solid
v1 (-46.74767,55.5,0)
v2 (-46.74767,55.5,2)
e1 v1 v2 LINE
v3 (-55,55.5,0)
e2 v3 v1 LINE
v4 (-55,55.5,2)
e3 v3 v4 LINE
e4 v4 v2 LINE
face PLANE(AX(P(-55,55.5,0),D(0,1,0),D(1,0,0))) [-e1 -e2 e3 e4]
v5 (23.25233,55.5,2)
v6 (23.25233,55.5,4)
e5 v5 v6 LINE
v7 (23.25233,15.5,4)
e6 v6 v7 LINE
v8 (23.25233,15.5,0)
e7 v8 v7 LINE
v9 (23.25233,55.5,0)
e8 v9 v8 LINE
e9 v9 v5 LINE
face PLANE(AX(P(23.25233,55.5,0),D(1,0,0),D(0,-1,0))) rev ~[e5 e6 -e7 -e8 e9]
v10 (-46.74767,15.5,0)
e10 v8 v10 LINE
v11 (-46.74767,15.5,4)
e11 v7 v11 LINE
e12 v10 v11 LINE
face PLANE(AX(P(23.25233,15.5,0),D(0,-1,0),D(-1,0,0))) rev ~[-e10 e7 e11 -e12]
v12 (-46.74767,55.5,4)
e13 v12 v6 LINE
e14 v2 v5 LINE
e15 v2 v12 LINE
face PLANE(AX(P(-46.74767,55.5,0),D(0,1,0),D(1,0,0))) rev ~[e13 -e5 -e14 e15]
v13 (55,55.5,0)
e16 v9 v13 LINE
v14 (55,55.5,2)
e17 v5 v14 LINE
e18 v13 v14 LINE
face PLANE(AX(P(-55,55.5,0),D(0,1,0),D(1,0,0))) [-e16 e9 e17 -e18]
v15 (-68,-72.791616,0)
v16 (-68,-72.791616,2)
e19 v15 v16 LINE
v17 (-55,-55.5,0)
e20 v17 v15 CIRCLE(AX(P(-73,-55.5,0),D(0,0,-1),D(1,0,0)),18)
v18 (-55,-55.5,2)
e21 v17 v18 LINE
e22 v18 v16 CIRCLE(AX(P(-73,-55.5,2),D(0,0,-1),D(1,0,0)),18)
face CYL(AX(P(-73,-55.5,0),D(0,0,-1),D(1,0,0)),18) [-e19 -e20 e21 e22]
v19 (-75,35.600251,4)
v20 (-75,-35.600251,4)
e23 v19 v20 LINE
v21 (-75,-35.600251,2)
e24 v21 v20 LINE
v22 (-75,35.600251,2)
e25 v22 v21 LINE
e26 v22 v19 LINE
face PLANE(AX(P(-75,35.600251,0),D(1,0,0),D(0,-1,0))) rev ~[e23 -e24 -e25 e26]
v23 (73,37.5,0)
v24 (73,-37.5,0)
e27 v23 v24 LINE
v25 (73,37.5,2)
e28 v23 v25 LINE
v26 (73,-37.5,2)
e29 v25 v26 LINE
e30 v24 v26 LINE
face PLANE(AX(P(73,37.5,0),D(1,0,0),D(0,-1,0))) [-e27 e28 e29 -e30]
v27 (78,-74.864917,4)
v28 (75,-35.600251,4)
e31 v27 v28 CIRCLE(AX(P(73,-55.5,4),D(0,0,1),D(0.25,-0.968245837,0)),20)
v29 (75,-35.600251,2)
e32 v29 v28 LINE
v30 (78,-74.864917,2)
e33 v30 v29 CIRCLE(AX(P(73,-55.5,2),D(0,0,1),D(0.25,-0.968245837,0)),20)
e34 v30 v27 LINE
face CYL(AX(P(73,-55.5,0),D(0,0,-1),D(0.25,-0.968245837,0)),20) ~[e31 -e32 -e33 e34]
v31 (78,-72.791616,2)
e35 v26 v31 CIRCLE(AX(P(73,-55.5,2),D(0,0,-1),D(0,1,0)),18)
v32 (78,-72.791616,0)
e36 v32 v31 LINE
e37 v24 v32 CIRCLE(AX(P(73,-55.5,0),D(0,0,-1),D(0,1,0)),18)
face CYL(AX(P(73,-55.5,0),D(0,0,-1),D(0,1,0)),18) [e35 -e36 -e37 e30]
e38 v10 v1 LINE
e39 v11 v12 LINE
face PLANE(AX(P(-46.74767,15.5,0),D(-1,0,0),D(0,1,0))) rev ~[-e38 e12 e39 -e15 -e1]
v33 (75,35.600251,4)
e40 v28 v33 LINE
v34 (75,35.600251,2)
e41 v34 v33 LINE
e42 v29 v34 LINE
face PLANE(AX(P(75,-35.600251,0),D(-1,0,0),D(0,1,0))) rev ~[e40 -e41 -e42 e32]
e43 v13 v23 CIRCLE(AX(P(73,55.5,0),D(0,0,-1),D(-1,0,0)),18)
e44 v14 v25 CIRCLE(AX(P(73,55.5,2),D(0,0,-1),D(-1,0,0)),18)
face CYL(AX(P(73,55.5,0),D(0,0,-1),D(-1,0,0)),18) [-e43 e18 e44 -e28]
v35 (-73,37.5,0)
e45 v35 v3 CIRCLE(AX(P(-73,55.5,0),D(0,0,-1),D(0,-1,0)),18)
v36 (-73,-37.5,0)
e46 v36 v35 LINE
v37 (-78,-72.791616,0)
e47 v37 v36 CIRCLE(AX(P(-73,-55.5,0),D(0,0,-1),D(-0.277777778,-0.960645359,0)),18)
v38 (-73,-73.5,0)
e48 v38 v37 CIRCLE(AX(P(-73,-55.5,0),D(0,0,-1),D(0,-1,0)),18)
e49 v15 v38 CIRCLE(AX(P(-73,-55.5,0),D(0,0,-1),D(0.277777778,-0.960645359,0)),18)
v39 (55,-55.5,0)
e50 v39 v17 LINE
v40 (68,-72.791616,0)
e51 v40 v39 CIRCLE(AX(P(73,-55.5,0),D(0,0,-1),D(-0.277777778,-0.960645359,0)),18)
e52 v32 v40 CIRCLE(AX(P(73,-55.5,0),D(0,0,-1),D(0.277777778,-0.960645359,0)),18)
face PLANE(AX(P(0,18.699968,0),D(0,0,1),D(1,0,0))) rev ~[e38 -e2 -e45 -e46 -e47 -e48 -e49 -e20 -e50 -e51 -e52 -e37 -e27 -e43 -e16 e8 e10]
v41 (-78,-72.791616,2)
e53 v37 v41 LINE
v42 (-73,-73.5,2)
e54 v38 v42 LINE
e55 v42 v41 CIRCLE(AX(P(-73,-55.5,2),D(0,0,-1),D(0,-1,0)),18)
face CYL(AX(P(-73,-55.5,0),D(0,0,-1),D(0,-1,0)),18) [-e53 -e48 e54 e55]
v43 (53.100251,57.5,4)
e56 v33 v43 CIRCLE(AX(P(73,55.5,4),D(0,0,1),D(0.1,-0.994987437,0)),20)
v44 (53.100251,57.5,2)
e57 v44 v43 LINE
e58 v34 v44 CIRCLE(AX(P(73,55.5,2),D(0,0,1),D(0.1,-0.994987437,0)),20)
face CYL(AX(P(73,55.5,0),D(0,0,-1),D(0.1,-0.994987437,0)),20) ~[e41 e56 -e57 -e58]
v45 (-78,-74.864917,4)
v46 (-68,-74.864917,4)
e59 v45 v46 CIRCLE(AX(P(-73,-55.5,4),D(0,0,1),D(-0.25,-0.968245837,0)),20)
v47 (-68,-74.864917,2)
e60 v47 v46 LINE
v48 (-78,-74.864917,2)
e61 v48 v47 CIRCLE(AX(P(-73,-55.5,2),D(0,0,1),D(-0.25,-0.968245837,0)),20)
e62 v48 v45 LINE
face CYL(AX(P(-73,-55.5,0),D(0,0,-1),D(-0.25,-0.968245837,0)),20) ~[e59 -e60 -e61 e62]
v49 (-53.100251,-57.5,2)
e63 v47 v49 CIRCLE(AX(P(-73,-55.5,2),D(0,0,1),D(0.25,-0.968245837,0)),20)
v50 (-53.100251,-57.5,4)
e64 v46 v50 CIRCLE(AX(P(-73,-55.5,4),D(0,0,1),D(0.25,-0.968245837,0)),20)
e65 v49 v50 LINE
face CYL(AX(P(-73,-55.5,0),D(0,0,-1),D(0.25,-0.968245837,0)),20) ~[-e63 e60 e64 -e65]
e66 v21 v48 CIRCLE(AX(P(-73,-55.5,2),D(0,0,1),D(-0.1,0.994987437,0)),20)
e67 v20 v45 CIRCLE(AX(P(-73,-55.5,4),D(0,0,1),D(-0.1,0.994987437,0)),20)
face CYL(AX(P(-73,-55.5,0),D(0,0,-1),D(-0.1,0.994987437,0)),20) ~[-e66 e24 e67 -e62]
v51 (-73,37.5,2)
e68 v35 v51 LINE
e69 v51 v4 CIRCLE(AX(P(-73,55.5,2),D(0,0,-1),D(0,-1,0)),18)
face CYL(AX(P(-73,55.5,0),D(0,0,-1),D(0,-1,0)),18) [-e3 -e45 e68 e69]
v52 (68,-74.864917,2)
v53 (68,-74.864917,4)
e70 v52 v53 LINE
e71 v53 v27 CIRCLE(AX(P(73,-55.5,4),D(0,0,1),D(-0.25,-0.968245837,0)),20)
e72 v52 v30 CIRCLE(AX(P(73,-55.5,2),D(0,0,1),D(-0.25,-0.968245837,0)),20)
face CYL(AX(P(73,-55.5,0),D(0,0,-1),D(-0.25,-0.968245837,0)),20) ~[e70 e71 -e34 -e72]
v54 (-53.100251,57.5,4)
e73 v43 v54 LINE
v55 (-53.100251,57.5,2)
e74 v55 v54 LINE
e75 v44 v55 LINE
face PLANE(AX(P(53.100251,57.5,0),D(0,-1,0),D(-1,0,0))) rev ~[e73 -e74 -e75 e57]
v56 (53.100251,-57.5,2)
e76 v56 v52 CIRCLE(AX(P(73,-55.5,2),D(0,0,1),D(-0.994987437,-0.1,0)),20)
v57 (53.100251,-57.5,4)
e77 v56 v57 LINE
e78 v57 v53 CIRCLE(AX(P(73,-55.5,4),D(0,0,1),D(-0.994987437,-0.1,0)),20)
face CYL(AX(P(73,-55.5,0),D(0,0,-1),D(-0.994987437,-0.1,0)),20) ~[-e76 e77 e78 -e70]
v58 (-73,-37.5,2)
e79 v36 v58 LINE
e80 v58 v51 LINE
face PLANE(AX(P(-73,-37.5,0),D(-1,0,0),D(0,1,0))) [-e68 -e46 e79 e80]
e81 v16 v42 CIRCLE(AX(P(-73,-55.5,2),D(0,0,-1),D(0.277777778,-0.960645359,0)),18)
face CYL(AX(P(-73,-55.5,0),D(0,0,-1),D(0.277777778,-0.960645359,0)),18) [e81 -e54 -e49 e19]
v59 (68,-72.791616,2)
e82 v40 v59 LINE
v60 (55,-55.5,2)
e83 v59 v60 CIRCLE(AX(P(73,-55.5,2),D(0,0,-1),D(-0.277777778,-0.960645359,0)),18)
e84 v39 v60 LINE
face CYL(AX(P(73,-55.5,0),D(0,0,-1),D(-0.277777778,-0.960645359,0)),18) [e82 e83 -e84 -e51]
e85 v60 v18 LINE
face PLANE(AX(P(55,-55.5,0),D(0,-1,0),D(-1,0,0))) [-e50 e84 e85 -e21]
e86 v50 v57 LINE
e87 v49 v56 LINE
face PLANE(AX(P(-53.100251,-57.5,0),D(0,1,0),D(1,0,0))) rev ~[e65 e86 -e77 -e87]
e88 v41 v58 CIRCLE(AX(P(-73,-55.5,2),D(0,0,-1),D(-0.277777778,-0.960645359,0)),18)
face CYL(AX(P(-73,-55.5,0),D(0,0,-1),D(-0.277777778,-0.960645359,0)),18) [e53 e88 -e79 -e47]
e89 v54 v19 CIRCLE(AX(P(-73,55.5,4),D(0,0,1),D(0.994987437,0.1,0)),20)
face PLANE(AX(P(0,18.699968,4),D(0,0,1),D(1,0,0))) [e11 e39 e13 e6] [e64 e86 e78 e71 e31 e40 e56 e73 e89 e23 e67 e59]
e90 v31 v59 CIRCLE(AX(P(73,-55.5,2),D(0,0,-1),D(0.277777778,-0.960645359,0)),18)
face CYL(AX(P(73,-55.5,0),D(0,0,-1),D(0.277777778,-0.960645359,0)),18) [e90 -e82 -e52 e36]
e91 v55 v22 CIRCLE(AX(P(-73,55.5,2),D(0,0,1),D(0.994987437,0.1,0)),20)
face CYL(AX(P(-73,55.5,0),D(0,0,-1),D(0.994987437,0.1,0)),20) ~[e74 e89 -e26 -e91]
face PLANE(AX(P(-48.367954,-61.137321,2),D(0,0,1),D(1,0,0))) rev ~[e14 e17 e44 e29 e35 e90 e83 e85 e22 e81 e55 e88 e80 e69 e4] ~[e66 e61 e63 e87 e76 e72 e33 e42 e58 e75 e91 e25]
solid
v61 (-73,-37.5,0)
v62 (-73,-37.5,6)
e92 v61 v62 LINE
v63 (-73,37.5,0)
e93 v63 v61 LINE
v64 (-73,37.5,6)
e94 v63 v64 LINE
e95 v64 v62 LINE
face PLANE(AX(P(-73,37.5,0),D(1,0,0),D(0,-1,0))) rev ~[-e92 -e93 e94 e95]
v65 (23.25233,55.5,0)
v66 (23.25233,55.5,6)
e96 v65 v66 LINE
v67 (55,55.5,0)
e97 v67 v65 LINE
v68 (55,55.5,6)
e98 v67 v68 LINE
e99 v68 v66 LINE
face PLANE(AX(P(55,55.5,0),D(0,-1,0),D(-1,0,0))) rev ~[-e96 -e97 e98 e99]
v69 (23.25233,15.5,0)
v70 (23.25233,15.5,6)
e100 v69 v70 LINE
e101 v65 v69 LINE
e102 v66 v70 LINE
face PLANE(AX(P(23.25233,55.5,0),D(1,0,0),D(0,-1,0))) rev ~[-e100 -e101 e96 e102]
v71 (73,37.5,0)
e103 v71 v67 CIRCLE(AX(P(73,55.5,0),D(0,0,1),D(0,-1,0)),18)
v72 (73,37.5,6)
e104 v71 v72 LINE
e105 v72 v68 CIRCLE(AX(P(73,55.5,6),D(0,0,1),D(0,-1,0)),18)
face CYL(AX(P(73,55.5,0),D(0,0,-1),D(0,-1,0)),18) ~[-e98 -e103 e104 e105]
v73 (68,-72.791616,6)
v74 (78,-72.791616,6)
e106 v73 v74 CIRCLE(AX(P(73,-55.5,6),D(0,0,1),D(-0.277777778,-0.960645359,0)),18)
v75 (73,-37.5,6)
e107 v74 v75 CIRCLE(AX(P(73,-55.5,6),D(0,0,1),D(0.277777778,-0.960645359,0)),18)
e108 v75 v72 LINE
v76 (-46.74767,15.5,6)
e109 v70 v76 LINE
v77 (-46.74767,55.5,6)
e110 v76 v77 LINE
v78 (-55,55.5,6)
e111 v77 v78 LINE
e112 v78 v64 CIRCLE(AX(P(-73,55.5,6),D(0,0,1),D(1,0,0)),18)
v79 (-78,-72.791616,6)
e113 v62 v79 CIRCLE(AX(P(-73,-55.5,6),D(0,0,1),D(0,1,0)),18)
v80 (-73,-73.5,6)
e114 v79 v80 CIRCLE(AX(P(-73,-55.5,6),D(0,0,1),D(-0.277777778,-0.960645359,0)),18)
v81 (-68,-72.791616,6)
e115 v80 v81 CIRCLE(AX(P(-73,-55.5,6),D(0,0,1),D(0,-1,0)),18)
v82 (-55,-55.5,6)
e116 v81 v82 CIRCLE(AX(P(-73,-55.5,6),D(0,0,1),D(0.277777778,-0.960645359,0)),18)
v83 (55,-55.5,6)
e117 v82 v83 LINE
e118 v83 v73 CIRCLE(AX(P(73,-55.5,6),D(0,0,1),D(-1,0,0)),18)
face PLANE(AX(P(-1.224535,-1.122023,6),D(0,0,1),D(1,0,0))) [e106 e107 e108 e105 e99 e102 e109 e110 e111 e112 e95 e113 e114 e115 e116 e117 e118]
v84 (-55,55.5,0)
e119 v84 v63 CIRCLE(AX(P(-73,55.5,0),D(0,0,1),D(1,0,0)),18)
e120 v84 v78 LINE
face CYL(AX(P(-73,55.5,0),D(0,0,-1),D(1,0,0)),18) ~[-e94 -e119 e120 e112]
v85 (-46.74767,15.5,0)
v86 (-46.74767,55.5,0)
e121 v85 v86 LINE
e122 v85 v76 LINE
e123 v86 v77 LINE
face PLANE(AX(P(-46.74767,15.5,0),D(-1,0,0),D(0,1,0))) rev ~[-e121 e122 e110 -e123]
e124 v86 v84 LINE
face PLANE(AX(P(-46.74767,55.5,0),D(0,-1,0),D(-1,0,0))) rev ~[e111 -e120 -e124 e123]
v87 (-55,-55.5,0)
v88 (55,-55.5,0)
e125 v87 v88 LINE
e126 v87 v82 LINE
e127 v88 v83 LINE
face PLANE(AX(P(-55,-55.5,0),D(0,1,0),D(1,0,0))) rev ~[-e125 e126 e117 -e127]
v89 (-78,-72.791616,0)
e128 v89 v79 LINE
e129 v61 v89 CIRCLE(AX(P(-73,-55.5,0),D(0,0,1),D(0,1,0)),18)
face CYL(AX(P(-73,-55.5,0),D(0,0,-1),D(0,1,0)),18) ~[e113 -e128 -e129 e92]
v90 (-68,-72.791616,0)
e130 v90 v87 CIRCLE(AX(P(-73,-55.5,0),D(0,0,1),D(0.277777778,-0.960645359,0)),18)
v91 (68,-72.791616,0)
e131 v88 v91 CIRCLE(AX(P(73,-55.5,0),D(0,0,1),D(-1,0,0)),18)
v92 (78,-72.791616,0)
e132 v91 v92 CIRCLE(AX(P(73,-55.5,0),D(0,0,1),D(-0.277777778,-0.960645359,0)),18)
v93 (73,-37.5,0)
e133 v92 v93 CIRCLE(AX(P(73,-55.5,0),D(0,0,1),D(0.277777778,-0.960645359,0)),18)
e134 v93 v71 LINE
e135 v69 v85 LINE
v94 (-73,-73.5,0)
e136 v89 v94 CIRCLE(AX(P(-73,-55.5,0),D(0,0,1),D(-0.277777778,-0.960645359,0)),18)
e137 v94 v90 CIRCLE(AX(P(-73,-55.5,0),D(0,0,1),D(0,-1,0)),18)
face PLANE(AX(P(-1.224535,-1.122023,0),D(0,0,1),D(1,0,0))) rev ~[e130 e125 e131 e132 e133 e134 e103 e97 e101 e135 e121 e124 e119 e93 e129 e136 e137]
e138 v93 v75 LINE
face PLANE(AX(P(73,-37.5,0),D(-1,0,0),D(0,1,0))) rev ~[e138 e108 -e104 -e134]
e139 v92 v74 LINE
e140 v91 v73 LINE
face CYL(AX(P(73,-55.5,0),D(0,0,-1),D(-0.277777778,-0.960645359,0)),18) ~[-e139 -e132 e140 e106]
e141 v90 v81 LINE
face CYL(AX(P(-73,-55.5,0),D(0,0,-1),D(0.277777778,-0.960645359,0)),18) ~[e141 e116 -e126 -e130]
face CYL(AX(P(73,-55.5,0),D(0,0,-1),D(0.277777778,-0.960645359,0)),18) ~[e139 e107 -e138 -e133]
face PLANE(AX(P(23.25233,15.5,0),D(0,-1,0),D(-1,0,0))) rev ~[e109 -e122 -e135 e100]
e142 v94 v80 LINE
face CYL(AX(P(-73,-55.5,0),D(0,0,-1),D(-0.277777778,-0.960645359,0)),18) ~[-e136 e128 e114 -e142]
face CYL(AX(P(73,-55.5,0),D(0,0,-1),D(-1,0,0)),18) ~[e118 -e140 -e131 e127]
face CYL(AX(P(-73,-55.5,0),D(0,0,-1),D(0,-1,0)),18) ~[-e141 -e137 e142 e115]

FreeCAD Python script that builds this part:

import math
import FreeCAD as App
import Part
import Sketcher
from FreeCAD import Vector
Q = App.Units.Quantity


def add_polygon(sketch, points):
    """Adds a closed chain of lines whose ends are joined by coincident constraints."""
    first, n = sketch.GeometryCount, len(points)
    for a, b in zip(points, points[1:] + points[:1]):
        sketch.addGeometry(Part.LineSegment(App.Vector(*a, 0), App.Vector(*b, 0)), False)
    for i in range(n):
        sketch.addConstraint(Sketcher.Constraint("Coincident", first + i, 2, first + (i + 1) % n, 1))

doc = App.newDocument("Part")
body = doc.addObject("PartDesign::Body", "Body")

sketch1 = body.newObject("Sketcher::SketchObject", "Sketch")
sketch1.AttachmentSupport = (doc.getObject("XY_Plane"), [""])
sketch1.MapMode = "FlatFace"
sketch1.addGeometry(Part.LineSegment(Vector(53, 58, 0), Vector(-53, 58, 0)), False)
sketch1.addGeometry(Part.ArcOfCircle(Part.Circle(Vector(-73, 56, 0), Vector(0, 0, 1), 20), math.radians(6), math.radians(264)), False)
sketch1.addGeometry(Part.LineSegment(Vector(-75, 36, 0), Vector(-75, -36, 0)), False)
sketch1.addGeometry(Part.ArcOfCircle(Part.Circle(Vector(-73, -56, 0), Vector(0, 0, 1), 20), math.radians(96), math.radians(256)), False)
sketch1.addGeometry(Part.ArcOfCircle(Part.Circle(Vector(-73, -56, 0), Vector(0, 0, 1), 20), math.radians(-104), math.radians(-76)), False)
sketch1.addGeometry(Part.ArcOfCircle(Part.Circle(Vector(-73, -56, 0), Vector(0, 0, 1), 20), math.radians(-76), math.radians(-6)), False)
sketch1.addGeometry(Part.LineSegment(Vector(-53, -58, 0), Vector(53, -58, 0)), False)
sketch1.addGeometry(Part.ArcOfCircle(Part.Circle(Vector(73, -56, 0), Vector(0, 0, 1), 20), math.radians(-174), math.radians(-104)), False)
sketch1.addGeometry(Part.ArcOfCircle(Part.Circle(Vector(73, -56, 0), Vector(0, 0, 1), 20), math.radians(-104), math.radians(-76)), False)
sketch1.addGeometry(Part.ArcOfCircle(Part.Circle(Vector(73, -56, 0), Vector(0, 0, 1), 20), math.radians(-76), math.radians(84)), False)
sketch1.addGeometry(Part.LineSegment(Vector(75, -36, 0), Vector(75, 36, 0)), False)
sketch1.addGeometry(Part.ArcOfCircle(Part.Circle(Vector(73, 56, 0), Vector(0, 0, 1), 20), math.radians(-84), math.radians(174)), False)
add_polygon(sketch1, [(-47, 56), (23, 56), (23, 16), (-47, 16)])
sketch1.addConstraint(Sketcher.Constraint("Coincident", 0, 2, 1, 1))
sketch1.addConstraint(Sketcher.Constraint("Coincident", 1, 2, 2, 1))
sketch1.addConstraint(Sketcher.Constraint("Coincident", 2, 2, 3, 1))
sketch1.addConstraint(Sketcher.Constraint("Tangent", 3, 2, 4, 1))
sketch1.addConstraint(Sketcher.Constraint("Tangent", 4, 2, 5, 1))
sketch1.addConstraint(Sketcher.Constraint("Coincident", 5, 2, 6, 1))
sketch1.addConstraint(Sketcher.Constraint("Coincident", 6, 2, 7, 1))
sketch1.addConstraint(Sketcher.Constraint("Tangent", 7, 2, 8, 1))
sketch1.addConstraint(Sketcher.Constraint("Tangent", 8, 2, 9, 1))
sketch1.addConstraint(Sketcher.Constraint("Coincident", 9, 2, 10, 1))
sketch1.addConstraint(Sketcher.Constraint("Coincident", 10, 2, 11, 1))
sketch1.addConstraint(Sketcher.Constraint("Coincident", 11, 2, 0, 1))
sketch1.addConstraint(Sketcher.Constraint("Horizontal", 0))
sketch1.addConstraint(Sketcher.Constraint("Vertical", 2))
sketch1.addConstraint(Sketcher.Constraint("Horizontal", 6))
sketch1.addConstraint(Sketcher.Constraint("Vertical", 10))
sketch1.addConstraint(Sketcher.Constraint("Horizontal", 12))
sketch1.addConstraint(Sketcher.Constraint("Vertical", 13))
sketch1.addConstraint(Sketcher.Constraint("Horizontal", 14))
sketch1.addConstraint(Sketcher.Constraint("Vertical", 15))
sketch1.addConstraint(Sketcher.Constraint("Coincident", 5, 3, 3, 3))
sketch1.addConstraint(Sketcher.Constraint("Coincident", 9, 3, 7, 3))
sketch1.addConstraint(Sketcher.Constraint("Equal", 1, 3))
sketch1.addConstraint(Sketcher.Constraint("Equal", 5, 7))
sketch1.addConstraint(Sketcher.Constraint("Equal", 9, 11))
sketch1.addConstraint(Sketcher.Constraint("Symmetric", 1, 3, 7, 3, -1, 1))
sketch1.addConstraint(Sketcher.Constraint("Symmetric", 3, 3, 11, 3, -1, 1))
sketch1.addConstraint(Sketcher.Constraint("Symmetric", 3, 3, 7, 3, -2))
sketch1.addConstraint(Sketcher.Constraint("Horizontal", 3, 2, 4, 2))
sketch1.addConstraint(Sketcher.Constraint("Horizontal", 4, 2, 7, 2))
sketch1.addConstraint(Sketcher.Constraint("Horizontal", 7, 2, 8, 2))
sketch1.addConstraint(Sketcher.Constraint("Horizontal", 2, 2, 9, 2))
sketch1.addConstraint(Sketcher.Constraint("Horizontal", 11, 3, 12, 2))
sketch1.addConstraint(Sketcher.Constraint("Vertical", 0, 2, 5, 2))
sketch1.addConstraint(Sketcher.Constraint("Radius", 1, Q("20 mm")))
sketch1.addConstraint(Sketcher.Constraint("DistanceX", 12, 1, 12, 2, Q("70 mm")))
sketch1.addConstraint(Sketcher.Constraint("DistanceY", 13, 2, 13, 1, Q("40 mm")))
sketch1.addConstraint(Sketcher.Constraint("DistanceX", 1, 3, -1, 1, Q("73 mm")))
sketch1.addConstraint(Sketcher.Constraint("DistanceX", 1, 2, -1, 1, Q("75 mm")))
sketch1.addConstraint(Sketcher.Constraint("DistanceX", 3, 2, -1, 1, Q("78 mm")))
sketch1.addConstraint(Sketcher.Constraint("DistanceY", 3, 3, 1, 3, Q("111 mm")))
sketch1.addConstraint(Sketcher.Constraint("DistanceY", 1, 3, 0, 2, Q("2 mm")))
sketch1.addConstraint(Sketcher.Constraint("DistanceX", -1, 1, 12, 2, Q("23.25233 mm")))
pad1 = body.newObject("PartDesign::Pad", "Pad")
pad1.Profile = sketch1
pad1.Length = 4

sketch2 = body.newObject("Sketcher::SketchObject", "Sketch001")
sketch2.AttachmentSupport = (doc.getObject("XY_Plane"), [""])
sketch2.MapMode = "FlatFace"
sketch2.addGeometry(Part.ArcOfCircle(Part.Circle(Vector(-73, -56, 0), Vector(0, 0, 1), 20), math.radians(-76), math.radians(-6)), False)
sketch2.addGeometry(Part.LineSegment(Vector(-53, -58, 0), Vector(53, -58, 0)), False)
sketch2.addGeometry(Part.ArcOfCircle(Part.Circle(Vector(73, -56, 0), Vector(0, 0, 1), 20), math.radians(-174), math.radians(-104)), False)
sketch2.addGeometry(Part.ArcOfCircle(Part.Circle(Vector(73, -56, 0), Vector(0, 0, 1), 20), math.radians(-104), math.radians(-76)), False)
sketch2.addGeometry(Part.ArcOfCircle(Part.Circle(Vector(73, -56, 0), Vector(0, 0, 1), 20), math.radians(-76), math.radians(84)), False)
sketch2.addGeometry(Part.LineSegment(Vector(75, -36, 0), Vector(75, 36, 0)), False)
sketch2.addGeometry(Part.ArcOfCircle(Part.Circle(Vector(73, 56, 0), Vector(0, 0, 1), 20), math.radians(-84), math.radians(174)), False)
sketch2.addGeometry(Part.LineSegment(Vector(53, 58, 0), Vector(-53, 58, 0)), False)
sketch2.addGeometry(Part.ArcOfCircle(Part.Circle(Vector(-73, 56, 0), Vector(0, 0, 1), 20), math.radians(6), math.radians(264)), False)
sketch2.addGeometry(Part.LineSegment(Vector(-75, 36, 0), Vector(-75, -36, 0)), False)
sketch2.addGeometry(Part.ArcOfCircle(Part.Circle(Vector(-73, -56, 0), Vector(0, 0, 1), 20), math.radians(96), math.radians(256)), False)
sketch2.addGeometry(Part.ArcOfCircle(Part.Circle(Vector(-73, -56, 0), Vector(0, 0, 1), 20), math.radians(-104), math.radians(-76)), False)
sketch2.addGeometry(Part.ArcOfCircle(Part.Circle(Vector(73, -56, 0), Vector(0, 0, 1), 18), math.radians(180), math.radians(254)), False)
sketch2.addGeometry(Part.LineSegment(Vector(55, -56, 0), Vector(-55, -56, 0)), False)
sketch2.addGeometry(Part.ArcOfCircle(Part.Circle(Vector(-73, -56, 0), Vector(0, 0, 1), 18), math.radians(-74), math.radians(0)), False)
sketch2.addGeometry(Part.ArcOfCircle(Part.Circle(Vector(-73, -56, 0), Vector(0, 0, 1), 18), math.radians(-90), math.radians(-73.87)), False)
sketch2.addGeometry(Part.ArcOfCircle(Part.Circle(Vector(-73, -56, 0), Vector(0, 0, 1), 18), math.radians(-106.13), math.radians(-90)), False)
sketch2.addGeometry(Part.ArcOfCircle(Part.Circle(Vector(-73, -56, 0), Vector(0, 0, 1), 18), math.radians(90), math.radians(254)), False)
sketch2.addGeometry(Part.LineSegment(Vector(-73, -38, 0), Vector(-73, 38, 0)), False)
sketch2.addGeometry(Part.ArcOfCircle(Part.Circle(Vector(-73, 56, 0), Vector(0, 0, 1), 18), math.radians(0), math.radians(270)), False)
sketch2.addGeometry(Part.LineSegment(Vector(-55, 56, 0), Vector(55, 56, 0)), False)
sketch2.addGeometry(Part.ArcOfCircle(Part.Circle(Vector(73, 56, 0), Vector(0, 0, 1), 18), math.radians(-90), math.radians(180)), False)
sketch2.addGeometry(Part.LineSegment(Vector(73, 38, 0), Vector(73, -38, 0)), False)
sketch2.addGeometry(Part.ArcOfCircle(Part.Circle(Vector(73, -56, 0), Vector(0, 0, 1), 18), math.radians(-74), math.radians(90)), False)
sketch2.addGeometry(Part.ArcOfCircle(Part.Circle(Vector(73, -56, 0), Vector(0, 0, 1), 18), math.radians(-106), math.radians(-74)), False)
sketch2.addConstraint(Sketcher.Constraint("Coincident", 0, 2, 1, 1))
sketch2.addConstraint(Sketcher.Constraint("Coincident", 1, 2, 2, 1))
sketch2.addConstraint(Sketcher.Constraint("Tangent", 2, 2, 3, 1))
sketch2.addConstraint(Sketcher.Constraint("Tangent", 3, 2, 4, 1))
sketch2.addConstraint(Sketcher.Constraint("Coincident", 4, 2, 5, 1))
sketch2.addConstraint(Sketcher.Constraint("Coincident", 5, 2, 6, 1))
sketch2.addConstraint(Sketcher.Constraint("Coincident", 6, 2, 7, 1))
sketch2.addConstraint(Sketcher.Constraint("Coincident", 7, 2, 8, 1))
sketch2.addConstraint(Sketcher.Constraint("Coincident", 8, 2, 9, 1))
sketch2.addConstraint(Sketcher.Constraint("Coincident", 9, 2, 10, 1))
sketch2.addConstraint(Sketcher.Constraint("Tangent", 10, 2, 11, 1))
sketch2.addConstraint(Sketcher.Constraint("Tangent", 11, 2, 0, 1))
sketch2.addConstraint(Sketcher.Constraint("Coincident", 12, 1, 13, 1))
sketch2.addConstraint(Sketcher.Constraint("Coincident", 13, 2, 14, 2))
sketch2.addConstraint(Sketcher.Constraint("Tangent", 14, 1, 15, 2))
sketch2.addConstraint(Sketcher.Constraint("Tangent", 15, 1, 16, 2))
sketch2.addConstraint(Sketcher.Constraint("Tangent", 16, 1, 17, 2))
sketch2.addConstraint(Sketcher.Constraint("Coincident", 17, 1, 18, 1))
sketch2.addConstraint(Sketcher.Constraint("Coincident", 18, 2, 19, 2))
sketch2.addConstraint(Sketcher.Constraint("Coincident", 19, 1, 20, 1))
sketch2.addConstraint(Sketcher.Constraint("Coincident", 20, 2, 21, 2))
sketch2.addConstraint(Sketcher.Constraint("Coincident", 21, 1, 22, 1))
sketch2.addConstraint(Sketcher.Constraint("Coincident", 22, 2, 23, 2))
sketch2.addConstraint(Sketcher.Constraint("Tangent", 23, 1, 24, 2))
sketch2.addConstraint(Sketcher.Constraint("Tangent", 24, 1, 12, 2))
sketch2.addConstraint(Sketcher.Constraint("Horizontal", 1))
sketch2.addConstraint(Sketcher.Constraint("Vertical", 5))
sketch2.addConstraint(Sketcher.Constraint("Horizontal", 7))
sketch2.addConstraint(Sketcher.Constraint("Vertical", 9))
sketch2.addConstraint(Sketcher.Constraint("Horizontal", 13))
sketch2.addConstraint(Sketcher.Constraint("Vertical", 18))
sketch2.addConstraint(Sketcher.Constraint("Horizontal", 20))
sketch2.addConstraint(Sketcher.Constraint("Vertical", 22))
sketch2.addConstraint(Sketcher.Constraint("Coincident", 4, 3, 2, 3))
sketch2.addConstraint(Sketcher.Constraint("Coincident", 10, 3, 0, 3))
sketch2.addConstraint(Sketcher.Constraint("Coincident", 12, 3, 2, 3))
sketch2.addConstraint(Sketcher.Constraint("Coincident", 14, 3, 0, 3))
sketch2.addConstraint(Sketcher.Constraint("Coincident", 16, 3, 0, 3))
sketch2.addConstraint(Sketcher.Constraint("Coincident", 19, 3, 8, 3))
sketch2.addConstraint(Sketcher.Constraint("Coincident", 21, 3, 6, 3))
sketch2.addConstraint(Sketcher.Constraint("Coincident", 23, 3, 2, 3))
sketch2.addConstraint(Sketcher.Constraint("Equal", 0, 2))
sketch2.addConstraint(Sketcher.Constraint("Equal", 4, 6))
sketch2.addConstraint(Sketcher.Constraint("Equal", 6, 8))
sketch2.addConstraint(Sketcher.Constraint("Equal", 12, 14))
sketch2.addConstraint(Sketcher.Constraint("Equal", 16, 17))
sketch2.addConstraint(Sketcher.Constraint("Equal", 17, 19))
sketch2.addConstraint(Sketcher.Constraint("Equal", 19, 21))
sketch2.addConstraint(Sketcher.Constraint("Symmetric", 0, 3, 6, 3, -1, 1))
sketch2.addConstraint(Sketcher.Constraint("Symmetric", 2, 3, 8, 3, -1, 1))
sketch2.addConstraint(Sketcher.Constraint("Symmetric", 0, 3, 2, 3, -2))
sketch2.addConstraint(Sketcher.Constraint("Horizontal", 2, 2, 3, 2))
sketch2.addConstraint(Sketcher.Constraint("Horizontal", 5, 2, 8, 2))
sketch2.addConstraint(Sketcher.Constraint("Horizontal", 3, 2, 10, 2))
sketch2.addConstraint(Sketcher.Constraint("Horizontal", 10, 2, 11, 2))
sketch2.addConstraint(Sketcher.Constraint("Horizontal", 24, 3, 12, 1))
sketch2.addConstraint(Sketcher.Constraint("Horizontal", 14, 1, 16, 1))
sketch2.addConstraint(Sketcher.Constraint("Horizontal", 21, 3, 19, 1))
sketch2.addConstraint(Sketcher.Constraint("Horizontal", 16, 1, 23, 1))
sketch2.addConstraint(Sketcher.Constraint("Horizontal", 23, 1, 24, 1))
sketch2.addConstraint(Sketcher.Constraint("Vertical", 1, 2, 6, 2))
sketch2.addConstraint(Sketcher.Constraint("Vertical", 11, 2, 14, 1))
sketch2.addConstraint(Sketcher.Constraint("Vertical", 19, 3, 15, 1))
sketch2.addConstraint(Sketcher.Constraint("Vertical", 15, 1, 17, 1))
sketch2.addConstraint(Sketcher.Constraint("Vertical", 24, 3, 21, 1))
sketch2.addConstraint(Sketcher.Constraint("Radius", 0, Q("20 mm")))
sketch2.addConstraint(Sketcher.Constraint("Radius", 12, Q("18 mm")))
sketch2.addConstraint(Sketcher.Constraint("DistanceX", 13, 2, 13, 1, Q("110 mm")))
sketch2.addConstraint(Sketcher.Constraint("DistanceY", 18, 1, 18, 2, Q("75 mm")))
sketch2.addConstraint(Sketcher.Constraint("DistanceX", -1, 1, 2, 2, Q("68 mm")))
sketch2.addConstraint(Sketcher.Constraint("DistanceX", -1, 1, 4, 2, Q("75 mm")))
sketch2.addConstraint(Sketcher.Constraint("DistanceY", 0, 2, 15, 3, Q("2 mm")))
pocket1 = body.newObject("PartDesign::Pocket", "Pocket")
pocket1.Profile = sketch2
pocket1.Length = 2
pocket1.Reversed = True

sketch3 = body.newObject("Sketcher::SketchObject", "Sketch002")
sketch3.AttachmentSupport = (doc.getObject("XY_Plane"), [""])
sketch3.MapMode = "FlatFace"
add_polygon(sketch3, [(-47, 56), (-47, 16), (23, 16), (23, 56)])
sketch3.addConstraint(Sketcher.Constraint("Vertical", 0))
sketch3.addConstraint(Sketcher.Constraint("Horizontal", 1))
sketch3.addConstraint(Sketcher.Constraint("Vertical", 2))
sketch3.addConstraint(Sketcher.Constraint("Horizontal", 3))
sketch3.addConstraint(Sketcher.Constraint("DistanceX", 1, 1, 1, 2, Q("70 mm")))
sketch3.addConstraint(Sketcher.Constraint("DistanceY", 0, 2, 0, 1, Q("40 mm")))
sketch3.addConstraint(Sketcher.Constraint("DistanceY", -1, 1, 0, 2, Q("15.5 mm")))
sketch3.addConstraint(Sketcher.Constraint("DistanceX", 0, 2, -1, 1, Q("46.74767 mm")))
pocket2 = body.newObject("PartDesign::Pocket", "Pocket001")
pocket2.Profile = sketch3
pocket2.Length = 6
pocket2.Reversed = True
body2 = doc.addObject("PartDesign::Body", "Body001")

sketch4 = body2.newObject("Sketcher::SketchObject", "Sketch003")
sketch4.AttachmentSupport = (doc.getObject("XY_Plane001"), [""])
sketch4.MapMode = "FlatFace"
sketch4.addGeometry(Part.ArcOfCircle(Part.Circle(Vector(-73, -56, 0), Vector(0, 0, 1), 18), math.radians(90), math.radians(254)), False)
sketch4.addGeometry(Part.ArcOfCircle(Part.Circle(Vector(-73, -56, 0), Vector(0, 0, 1), 18), math.radians(-106.13), math.radians(-90)), False)
sketch4.addGeometry(Part.ArcOfCircle(Part.Circle(Vector(-73, -56, 0), Vector(0, 0, 1), 18), math.radians(-90), math.radians(-73.87)), False)
sketch4.addGeometry(Part.ArcOfCircle(Part.Circle(Vector(-73, -56, 0), Vector(0, 0, 1), 18), math.radians(-74), math.radians(0)), False)
sketch4.addGeometry(Part.LineSegment(Vector(-55, -56, 0), Vector(55, -56, 0)), False)
sketch4.addGeometry(Part.ArcOfCircle(Part.Circle(Vector(73, -56, 0), Vector(0, 0, 1), 18), math.radians(180), math.radians(254)), False)
sketch4.addGeometry(Part.ArcOfCircle(Part.Circle(Vector(73, -56, 0), Vector(0, 0, 1), 18), math.radians(-106), math.radians(-74)), False)
sketch4.addGeometry(Part.ArcOfCircle(Part.Circle(Vector(73, -56, 0), Vector(0, 0, 1), 18), math.radians(-74), math.radians(90)), False)
sketch4.addGeometry(Part.LineSegment(Vector(73, -38, 0), Vector(73, 38, 0)), False)
sketch4.addGeometry(Part.ArcOfCircle(Part.Circle(Vector(73, 56, 0), Vector(0, 0, 1), 18), math.radians(-90), math.radians(180)), False)
sketch4.addGeometry(Part.LineSegment(Vector(55, 56, 0), Vector(23, 56, 0)), False)
sketch4.addGeometry(Part.LineSegment(Vector(23, 56, 0), Vector(23, 16, 0)), False)
sketch4.addGeometry(Part.LineSegment(Vector(23, 16, 0), Vector(-47, 16, 0)), False)
sketch4.addGeometry(Part.LineSegment(Vector(-47, 16, 0), Vector(-47, 56, 0)), False)
sketch4.addGeometry(Part.LineSegment(Vector(-47, 56, 0), Vector(-55, 56, 0)), False)
sketch4.addGeometry(Part.ArcOfCircle(Part.Circle(Vector(-73, 56, 0), Vector(0, 0, 1), 18), math.radians(0), math.radians(270)), False)
sketch4.addGeometry(Part.LineSegment(Vector(-73, 38, 0), Vector(-73, -38, 0)), False)
sketch4.addConstraint(Sketcher.Constraint("Tangent", 0, 2, 1, 1))
sketch4.addConstraint(Sketcher.Constraint("Tangent", 1, 2, 2, 1))
sketch4.addConstraint(Sketcher.Constraint("Tangent", 2, 2, 3, 1))
sketch4.addConstraint(Sketcher.Constraint("Coincident", 3, 2, 4, 1))
sketch4.addConstraint(Sketcher.Constraint("Coincident", 4, 2, 5, 1))
sketch4.addConstraint(Sketcher.Constraint("Tangent", 5, 2, 6, 1))
sketch4.addConstraint(Sketcher.Constraint("Tangent", 6, 2, 7, 1))
sketch4.addConstraint(Sketcher.Constraint("Coincident", 7, 2, 8, 1))
sketch4.addConstraint(Sketcher.Constraint("Coincident", 8, 2, 9, 1))
sketch4.addConstraint(Sketcher.Constraint("Coincident", 9, 2, 10, 1))
sketch4.addConstraint(Sketcher.Constraint("Coincident", 10, 2, 11, 1))
sketch4.addConstraint(Sketcher.Constraint("Coincident", 11, 2, 12, 1))
sketch4.addConstraint(Sketcher.Constraint("Coincident", 12, 2, 13, 1))
sketch4.addConstraint(Sketcher.Constraint("Coincident", 13, 2, 14, 1))
sketch4.addConstraint(Sketcher.Constraint("Coincident", 14, 2, 15, 1))
sketch4.addConstraint(Sketcher.Constraint("Coincident", 15, 2, 16, 1))
sketch4.addConstraint(Sketcher.Constraint("Coincident", 16, 2, 0, 1))
sketch4.addConstraint(Sketcher.Constraint("Horizontal", 4))
sketch4.addConstraint(Sketcher.Constraint("Vertical", 8))
sketch4.addConstraint(Sketcher.Constraint("Horizontal", 10))
sketch4.addConstraint(Sketcher.Constraint("Vertical", 11))
sketch4.addConstraint(Sketcher.Constraint("Horizontal", 12))
sketch4.addConstraint(Sketcher.Constraint("Vertical", 13))
sketch4.addConstraint(Sketcher.Constraint("Horizontal", 14))
sketch4.addConstraint(Sketcher.Constraint("Vertical", 16))
sketch4.addConstraint(Sketcher.Constraint("Coincident", 2, 3, 0, 3))
sketch4.addConstraint(Sketcher.Constraint("Coincident", 7, 3, 5, 3))
sketch4.addConstraint(Sketcher.Constraint("Equal", 2, 3))
sketch4.addConstraint(Sketcher.Constraint("Equal", 3, 5))
sketch4.addConstraint(Sketcher.Constraint("Equal", 7, 9))
sketch4.addConstraint(Sketcher.Constraint("Equal", 9, 15))
sketch4.addConstraint(Sketcher.Constraint("Symmetric", 0, 3, 9, 3, -1, 1))
sketch4.addConstraint(Sketcher.Constraint("Symmetric", 5, 3, 15, 3, -1, 1))
sketch4.addConstraint(Sketcher.Constraint("Symmetric", 0, 3, 5, 3, -2))
sketch4.addConstraint(Sketcher.Constraint("Horizontal", 0, 2, 2, 2))
sketch4.addConstraint(Sketcher.Constraint("Horizontal", 7, 3, 3, 2))
sketch4.addConstraint(Sketcher.Constraint("Horizontal", 2, 2, 5, 2))
sketch4.addConstraint(Sketcher.Constraint("Horizontal", 5, 2, 6, 2))
sketch4.addConstraint(Sketcher.Constraint("Horizontal", 15, 3, 9, 2))
sketch4.addConstraint(Sketcher.Constraint("Horizontal", 10, 2, 13, 2))
sketch4.addConstraint(Sketcher.Constraint("Vertical", 15, 3, 1, 2))
sketch4.addConstraint(Sketcher.Constraint("Vertical", 9, 3, 7, 2))
sketch4.addConstraint(Sketcher.Constraint("Vertical", 1, 2, 15, 2))
sketch4.addConstraint(Sketcher.Constraint("Radius", 0, Q("18 mm")))
sketch4.addConstraint(Sketcher.Constraint("DistanceX", 4, 1, 4, 2, Q("110 mm")))
sketch4.addConstraint(Sketcher.Constraint("DistanceX", 12, 2, 12, 1, Q("70 mm")))
sketch4.addConstraint(Sketcher.Constraint("DistanceY", 8, 1, 8, 2, Q("75 mm")))
sketch4.addConstraint(Sketcher.Constraint("DistanceY", 11, 2, 11, 1, Q("40 mm")))
sketch4.addConstraint(Sketcher.Constraint("DistanceX", 0, 2, -1, 1, Q("78 mm")))
sketch4.addConstraint(Sketcher.Constraint("DistanceX", 10, 2, 10, 1, Q("31.74767 mm")))
pad2 = body2.newObject("PartDesign::Pad", "Pad001")
pad2.Profile = sketch4
pad2.Length = 6

doc.recompute()
